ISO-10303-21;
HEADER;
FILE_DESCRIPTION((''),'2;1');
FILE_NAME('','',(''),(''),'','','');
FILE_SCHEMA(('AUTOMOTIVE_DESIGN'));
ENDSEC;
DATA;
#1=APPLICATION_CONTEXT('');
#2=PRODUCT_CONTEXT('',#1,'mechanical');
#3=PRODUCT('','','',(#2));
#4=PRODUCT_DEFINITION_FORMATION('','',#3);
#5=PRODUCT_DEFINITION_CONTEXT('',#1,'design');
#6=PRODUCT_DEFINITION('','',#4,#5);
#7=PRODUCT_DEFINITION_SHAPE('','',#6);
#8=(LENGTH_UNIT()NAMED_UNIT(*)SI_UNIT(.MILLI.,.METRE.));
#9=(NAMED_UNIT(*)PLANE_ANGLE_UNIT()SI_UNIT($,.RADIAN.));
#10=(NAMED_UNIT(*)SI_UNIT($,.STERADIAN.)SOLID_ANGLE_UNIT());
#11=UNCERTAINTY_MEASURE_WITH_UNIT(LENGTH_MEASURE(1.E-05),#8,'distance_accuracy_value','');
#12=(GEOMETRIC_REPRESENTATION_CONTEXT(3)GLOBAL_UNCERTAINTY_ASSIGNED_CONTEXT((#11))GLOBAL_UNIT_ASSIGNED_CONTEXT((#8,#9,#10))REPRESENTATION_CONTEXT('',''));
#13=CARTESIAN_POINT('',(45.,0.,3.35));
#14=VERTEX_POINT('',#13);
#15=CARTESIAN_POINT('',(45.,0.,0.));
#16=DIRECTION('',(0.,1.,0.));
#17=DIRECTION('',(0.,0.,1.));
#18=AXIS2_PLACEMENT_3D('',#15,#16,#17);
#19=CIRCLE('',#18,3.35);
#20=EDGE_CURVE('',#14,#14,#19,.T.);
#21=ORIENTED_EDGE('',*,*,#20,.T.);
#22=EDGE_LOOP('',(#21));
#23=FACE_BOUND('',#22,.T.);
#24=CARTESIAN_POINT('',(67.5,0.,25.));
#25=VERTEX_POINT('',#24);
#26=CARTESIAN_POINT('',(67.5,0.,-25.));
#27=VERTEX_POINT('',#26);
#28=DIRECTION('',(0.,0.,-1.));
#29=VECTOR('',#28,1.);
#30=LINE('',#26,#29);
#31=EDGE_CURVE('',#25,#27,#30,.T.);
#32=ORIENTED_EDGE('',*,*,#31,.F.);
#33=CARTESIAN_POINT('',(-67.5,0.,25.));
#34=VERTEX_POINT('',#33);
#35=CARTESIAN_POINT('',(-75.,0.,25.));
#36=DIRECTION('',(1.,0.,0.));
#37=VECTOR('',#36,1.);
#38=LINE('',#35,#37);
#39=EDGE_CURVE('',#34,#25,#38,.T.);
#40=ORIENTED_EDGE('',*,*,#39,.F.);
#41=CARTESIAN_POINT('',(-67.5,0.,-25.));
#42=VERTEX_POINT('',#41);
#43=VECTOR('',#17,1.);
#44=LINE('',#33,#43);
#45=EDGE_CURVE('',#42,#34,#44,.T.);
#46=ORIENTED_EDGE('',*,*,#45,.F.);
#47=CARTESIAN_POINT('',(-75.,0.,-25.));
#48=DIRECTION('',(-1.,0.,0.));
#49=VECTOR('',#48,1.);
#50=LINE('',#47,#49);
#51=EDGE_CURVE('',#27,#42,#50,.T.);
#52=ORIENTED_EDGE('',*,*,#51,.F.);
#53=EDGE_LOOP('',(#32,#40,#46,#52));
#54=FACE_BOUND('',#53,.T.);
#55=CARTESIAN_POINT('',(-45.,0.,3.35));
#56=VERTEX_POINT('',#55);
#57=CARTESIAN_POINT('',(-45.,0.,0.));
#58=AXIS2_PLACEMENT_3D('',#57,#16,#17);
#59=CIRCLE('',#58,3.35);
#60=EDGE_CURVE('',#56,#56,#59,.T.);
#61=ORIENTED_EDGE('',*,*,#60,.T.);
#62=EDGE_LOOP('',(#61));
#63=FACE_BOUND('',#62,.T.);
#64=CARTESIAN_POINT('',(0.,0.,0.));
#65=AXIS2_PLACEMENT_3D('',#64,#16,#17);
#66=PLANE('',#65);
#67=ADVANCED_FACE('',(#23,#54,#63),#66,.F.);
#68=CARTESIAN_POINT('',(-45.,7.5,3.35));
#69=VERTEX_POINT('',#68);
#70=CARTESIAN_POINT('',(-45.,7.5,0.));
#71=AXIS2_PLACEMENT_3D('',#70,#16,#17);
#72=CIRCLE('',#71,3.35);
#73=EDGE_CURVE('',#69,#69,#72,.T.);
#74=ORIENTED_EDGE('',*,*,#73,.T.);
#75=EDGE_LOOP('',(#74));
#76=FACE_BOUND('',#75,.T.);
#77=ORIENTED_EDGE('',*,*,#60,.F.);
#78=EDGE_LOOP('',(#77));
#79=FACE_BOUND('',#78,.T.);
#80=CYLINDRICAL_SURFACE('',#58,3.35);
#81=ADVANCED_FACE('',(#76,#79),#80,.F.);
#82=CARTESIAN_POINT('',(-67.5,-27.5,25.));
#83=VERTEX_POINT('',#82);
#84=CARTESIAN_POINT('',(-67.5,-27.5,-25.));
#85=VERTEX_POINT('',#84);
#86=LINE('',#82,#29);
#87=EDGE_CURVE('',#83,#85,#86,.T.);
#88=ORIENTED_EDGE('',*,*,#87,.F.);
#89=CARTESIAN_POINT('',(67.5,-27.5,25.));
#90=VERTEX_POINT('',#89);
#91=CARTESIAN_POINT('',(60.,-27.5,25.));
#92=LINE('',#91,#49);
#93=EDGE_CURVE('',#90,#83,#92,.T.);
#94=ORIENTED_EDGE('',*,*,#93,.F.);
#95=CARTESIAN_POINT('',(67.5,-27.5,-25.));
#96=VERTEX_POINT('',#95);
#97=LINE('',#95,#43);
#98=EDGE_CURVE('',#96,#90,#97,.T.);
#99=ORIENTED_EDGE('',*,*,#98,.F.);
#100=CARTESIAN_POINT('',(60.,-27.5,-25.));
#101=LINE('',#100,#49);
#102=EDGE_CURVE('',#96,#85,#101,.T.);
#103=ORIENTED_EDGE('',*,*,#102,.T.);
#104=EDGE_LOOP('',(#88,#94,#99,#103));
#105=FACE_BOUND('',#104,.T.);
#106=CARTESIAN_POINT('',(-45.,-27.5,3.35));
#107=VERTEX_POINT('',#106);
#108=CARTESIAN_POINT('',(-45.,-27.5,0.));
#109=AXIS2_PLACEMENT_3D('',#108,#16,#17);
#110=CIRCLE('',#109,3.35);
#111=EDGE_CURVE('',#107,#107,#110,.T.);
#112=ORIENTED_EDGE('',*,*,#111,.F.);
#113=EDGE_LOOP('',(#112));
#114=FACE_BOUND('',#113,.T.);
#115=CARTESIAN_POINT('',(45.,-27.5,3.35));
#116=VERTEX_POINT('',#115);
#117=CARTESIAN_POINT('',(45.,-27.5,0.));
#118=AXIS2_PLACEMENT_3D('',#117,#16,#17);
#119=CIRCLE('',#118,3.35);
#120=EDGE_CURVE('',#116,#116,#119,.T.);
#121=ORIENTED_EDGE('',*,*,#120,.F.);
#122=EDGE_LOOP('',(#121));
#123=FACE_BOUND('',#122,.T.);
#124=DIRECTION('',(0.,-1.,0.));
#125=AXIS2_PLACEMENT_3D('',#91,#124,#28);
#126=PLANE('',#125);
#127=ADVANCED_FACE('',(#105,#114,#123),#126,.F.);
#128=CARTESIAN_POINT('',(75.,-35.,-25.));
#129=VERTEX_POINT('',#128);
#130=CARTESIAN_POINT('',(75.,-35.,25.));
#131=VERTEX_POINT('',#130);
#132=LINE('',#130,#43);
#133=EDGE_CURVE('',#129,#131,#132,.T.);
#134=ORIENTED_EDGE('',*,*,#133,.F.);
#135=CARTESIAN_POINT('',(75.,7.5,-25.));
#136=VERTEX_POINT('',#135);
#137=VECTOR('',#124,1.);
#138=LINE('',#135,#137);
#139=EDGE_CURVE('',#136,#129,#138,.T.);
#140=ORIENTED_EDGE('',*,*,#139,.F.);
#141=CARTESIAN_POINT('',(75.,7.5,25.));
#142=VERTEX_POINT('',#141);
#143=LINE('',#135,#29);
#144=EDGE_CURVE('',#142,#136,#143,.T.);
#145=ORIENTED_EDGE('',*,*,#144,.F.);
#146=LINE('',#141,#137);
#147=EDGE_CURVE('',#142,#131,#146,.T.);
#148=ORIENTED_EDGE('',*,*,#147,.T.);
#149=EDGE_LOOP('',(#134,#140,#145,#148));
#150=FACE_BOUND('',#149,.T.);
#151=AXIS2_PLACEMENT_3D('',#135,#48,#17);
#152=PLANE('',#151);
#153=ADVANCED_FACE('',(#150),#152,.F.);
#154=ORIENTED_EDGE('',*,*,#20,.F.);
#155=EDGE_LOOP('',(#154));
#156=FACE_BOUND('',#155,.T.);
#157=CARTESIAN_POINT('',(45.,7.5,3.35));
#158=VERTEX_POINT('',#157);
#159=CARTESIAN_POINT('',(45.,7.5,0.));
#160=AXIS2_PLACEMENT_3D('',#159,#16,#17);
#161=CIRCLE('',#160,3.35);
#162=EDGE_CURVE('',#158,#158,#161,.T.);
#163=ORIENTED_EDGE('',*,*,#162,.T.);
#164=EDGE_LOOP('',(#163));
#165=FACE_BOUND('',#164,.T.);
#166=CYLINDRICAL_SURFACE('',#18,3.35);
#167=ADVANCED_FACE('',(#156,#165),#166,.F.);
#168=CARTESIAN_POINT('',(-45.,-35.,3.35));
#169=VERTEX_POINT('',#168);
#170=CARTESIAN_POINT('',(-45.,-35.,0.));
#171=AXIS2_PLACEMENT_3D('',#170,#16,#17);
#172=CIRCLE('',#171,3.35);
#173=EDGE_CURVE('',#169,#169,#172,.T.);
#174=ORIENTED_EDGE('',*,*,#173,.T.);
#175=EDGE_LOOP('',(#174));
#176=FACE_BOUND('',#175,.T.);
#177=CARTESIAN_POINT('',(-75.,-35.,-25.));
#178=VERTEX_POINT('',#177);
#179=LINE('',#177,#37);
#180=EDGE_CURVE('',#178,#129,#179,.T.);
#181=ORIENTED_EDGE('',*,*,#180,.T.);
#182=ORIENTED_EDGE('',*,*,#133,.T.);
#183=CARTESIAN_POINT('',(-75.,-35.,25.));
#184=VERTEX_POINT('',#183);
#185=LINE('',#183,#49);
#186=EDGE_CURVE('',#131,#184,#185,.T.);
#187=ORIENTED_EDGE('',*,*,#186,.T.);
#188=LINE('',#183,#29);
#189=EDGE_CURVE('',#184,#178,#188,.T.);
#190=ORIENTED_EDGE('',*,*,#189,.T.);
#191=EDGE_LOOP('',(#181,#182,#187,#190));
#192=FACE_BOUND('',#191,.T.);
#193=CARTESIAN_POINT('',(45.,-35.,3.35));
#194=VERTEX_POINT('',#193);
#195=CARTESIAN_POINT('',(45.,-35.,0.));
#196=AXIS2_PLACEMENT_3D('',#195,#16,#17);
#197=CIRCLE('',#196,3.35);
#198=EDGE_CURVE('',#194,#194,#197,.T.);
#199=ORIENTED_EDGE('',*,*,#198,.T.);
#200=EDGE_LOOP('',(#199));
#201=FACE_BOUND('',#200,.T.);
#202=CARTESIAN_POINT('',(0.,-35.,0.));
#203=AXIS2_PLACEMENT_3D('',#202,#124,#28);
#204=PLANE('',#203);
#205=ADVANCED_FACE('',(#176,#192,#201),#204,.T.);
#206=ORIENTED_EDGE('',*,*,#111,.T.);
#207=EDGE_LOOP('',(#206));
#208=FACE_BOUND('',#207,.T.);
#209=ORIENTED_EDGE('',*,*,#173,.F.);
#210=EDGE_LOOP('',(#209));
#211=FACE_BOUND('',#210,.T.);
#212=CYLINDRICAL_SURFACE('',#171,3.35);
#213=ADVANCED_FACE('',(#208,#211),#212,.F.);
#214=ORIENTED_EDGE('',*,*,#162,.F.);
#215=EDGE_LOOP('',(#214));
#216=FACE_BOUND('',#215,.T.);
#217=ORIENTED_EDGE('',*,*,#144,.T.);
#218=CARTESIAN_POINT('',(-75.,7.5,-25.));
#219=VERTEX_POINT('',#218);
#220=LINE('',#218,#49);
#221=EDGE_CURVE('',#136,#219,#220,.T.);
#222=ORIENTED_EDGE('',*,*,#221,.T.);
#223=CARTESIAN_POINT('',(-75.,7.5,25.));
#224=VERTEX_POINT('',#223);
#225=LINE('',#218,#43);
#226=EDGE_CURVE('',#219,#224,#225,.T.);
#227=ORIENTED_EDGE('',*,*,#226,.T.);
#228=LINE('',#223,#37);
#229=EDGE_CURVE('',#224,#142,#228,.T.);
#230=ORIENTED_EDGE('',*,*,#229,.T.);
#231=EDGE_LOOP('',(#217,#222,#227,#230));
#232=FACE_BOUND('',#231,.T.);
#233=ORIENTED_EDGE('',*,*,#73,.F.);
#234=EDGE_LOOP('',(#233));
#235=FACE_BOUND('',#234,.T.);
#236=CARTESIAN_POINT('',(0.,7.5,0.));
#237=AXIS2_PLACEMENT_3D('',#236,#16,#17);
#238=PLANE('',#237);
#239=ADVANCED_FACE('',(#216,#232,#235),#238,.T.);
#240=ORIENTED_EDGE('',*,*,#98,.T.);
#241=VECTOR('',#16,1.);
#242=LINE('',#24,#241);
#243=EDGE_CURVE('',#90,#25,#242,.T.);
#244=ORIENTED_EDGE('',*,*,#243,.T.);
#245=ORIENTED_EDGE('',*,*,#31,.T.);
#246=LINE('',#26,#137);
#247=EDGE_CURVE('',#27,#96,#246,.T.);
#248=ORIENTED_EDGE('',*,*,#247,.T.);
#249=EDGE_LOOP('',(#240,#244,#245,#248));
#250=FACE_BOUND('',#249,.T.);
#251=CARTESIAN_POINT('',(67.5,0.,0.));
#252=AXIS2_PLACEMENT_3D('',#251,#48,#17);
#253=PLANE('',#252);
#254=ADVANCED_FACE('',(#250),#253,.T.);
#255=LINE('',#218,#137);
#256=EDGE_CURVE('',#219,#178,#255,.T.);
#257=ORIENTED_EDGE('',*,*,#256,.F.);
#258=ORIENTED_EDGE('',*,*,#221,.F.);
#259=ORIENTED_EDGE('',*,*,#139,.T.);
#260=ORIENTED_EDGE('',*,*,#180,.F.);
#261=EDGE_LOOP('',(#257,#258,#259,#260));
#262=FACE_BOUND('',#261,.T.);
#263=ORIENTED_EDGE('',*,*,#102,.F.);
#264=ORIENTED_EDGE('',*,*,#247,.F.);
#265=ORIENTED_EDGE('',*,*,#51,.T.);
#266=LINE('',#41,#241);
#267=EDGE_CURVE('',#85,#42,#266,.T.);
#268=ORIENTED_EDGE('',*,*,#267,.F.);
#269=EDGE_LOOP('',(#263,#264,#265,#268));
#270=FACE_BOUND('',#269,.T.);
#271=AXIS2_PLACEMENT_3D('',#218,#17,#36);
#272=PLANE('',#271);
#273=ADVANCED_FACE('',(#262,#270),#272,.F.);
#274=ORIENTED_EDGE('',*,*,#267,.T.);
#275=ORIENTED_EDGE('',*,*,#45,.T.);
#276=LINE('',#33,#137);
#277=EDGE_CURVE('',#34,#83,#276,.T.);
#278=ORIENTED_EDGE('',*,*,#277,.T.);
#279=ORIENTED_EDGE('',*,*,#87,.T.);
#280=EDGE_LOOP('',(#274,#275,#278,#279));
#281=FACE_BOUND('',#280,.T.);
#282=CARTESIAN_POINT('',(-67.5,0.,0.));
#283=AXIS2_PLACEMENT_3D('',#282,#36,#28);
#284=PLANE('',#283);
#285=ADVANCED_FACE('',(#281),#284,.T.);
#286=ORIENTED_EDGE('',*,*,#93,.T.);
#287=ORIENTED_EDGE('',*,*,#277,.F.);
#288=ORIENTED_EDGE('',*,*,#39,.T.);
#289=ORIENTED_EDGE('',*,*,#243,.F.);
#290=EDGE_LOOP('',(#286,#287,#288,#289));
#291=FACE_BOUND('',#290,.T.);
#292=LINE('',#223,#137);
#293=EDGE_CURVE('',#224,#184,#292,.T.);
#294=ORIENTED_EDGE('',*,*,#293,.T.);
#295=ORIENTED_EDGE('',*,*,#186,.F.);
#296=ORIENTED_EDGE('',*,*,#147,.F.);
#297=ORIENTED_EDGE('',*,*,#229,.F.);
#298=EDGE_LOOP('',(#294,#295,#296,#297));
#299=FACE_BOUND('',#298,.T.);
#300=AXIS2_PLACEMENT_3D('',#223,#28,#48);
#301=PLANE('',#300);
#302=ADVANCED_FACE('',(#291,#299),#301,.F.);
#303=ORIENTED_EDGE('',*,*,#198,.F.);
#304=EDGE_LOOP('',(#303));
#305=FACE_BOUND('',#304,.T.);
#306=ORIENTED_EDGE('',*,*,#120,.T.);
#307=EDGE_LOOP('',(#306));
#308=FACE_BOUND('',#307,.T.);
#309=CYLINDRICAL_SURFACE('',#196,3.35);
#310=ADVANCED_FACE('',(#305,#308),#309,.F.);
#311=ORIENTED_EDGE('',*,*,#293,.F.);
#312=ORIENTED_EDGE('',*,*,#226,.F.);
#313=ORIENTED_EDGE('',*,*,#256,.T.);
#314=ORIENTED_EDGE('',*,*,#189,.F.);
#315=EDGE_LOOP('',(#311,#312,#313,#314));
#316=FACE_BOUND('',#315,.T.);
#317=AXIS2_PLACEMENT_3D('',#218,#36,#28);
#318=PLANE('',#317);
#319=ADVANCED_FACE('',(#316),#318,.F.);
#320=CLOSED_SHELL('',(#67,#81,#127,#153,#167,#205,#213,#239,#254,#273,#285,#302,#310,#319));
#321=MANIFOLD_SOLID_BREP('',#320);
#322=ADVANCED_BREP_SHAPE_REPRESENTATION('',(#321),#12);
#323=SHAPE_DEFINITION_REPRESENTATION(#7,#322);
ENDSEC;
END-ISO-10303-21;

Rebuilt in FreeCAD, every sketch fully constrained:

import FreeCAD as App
import Part
import Sketcher
from FreeCAD import Vector
Q = App.Units.Quantity


def add_polygon(sketch, points):
    """Adds a closed chain of lines whose ends are joined by coincident constraints."""
    first, n = sketch.GeometryCount, len(points)
    for a, b in zip(points, points[1:] + points[:1]):
        sketch.addGeometry(Part.LineSegment(App.Vector(*a, 0), App.Vector(*b, 0)), False)
    for i in range(n):
        sketch.addConstraint(Sketcher.Constraint("Coincident", first + i, 2, first + (i + 1) % n, 1))

doc = App.newDocument("Part")
body = doc.addObject("PartDesign::Body", "Body")

# Sketch on XZ plane
sketch1 = doc.addObject("Sketcher::SketchObject", "Sketch")
body.addObject(sketch1)
sketch1.AttachmentSupport = (doc.XZ_Plane, [""])
sketch1.MapMode = "FlatFace"
add_polygon(sketch1, [(-75, -25), (-75, 25), (75, 25), (75, -25)])  # lines 0-3
sketch1.addConstraint([
    Sketcher.Constraint("Vertical", 0),
    Sketcher.Constraint("Horizontal", 1),
    Sketcher.Constraint("Vertical", 2),
    Sketcher.Constraint("Horizontal", 3),
    Sketcher.Constraint("Symmetric", 0, 2, 2, 2, -1, 1),
    Sketcher.Constraint("DistanceX", 1, 1, 1, 2, Q("150 mm")),
    Sketcher.Constraint("DistanceY", 0, 1, 0, 2, Q("50 mm")),
])
pad1 = doc.addObject("PartDesign::Pad", "Pad")
body.addObject(pad1)
pad1.Profile = sketch1
pad1.Length = 7.5
pad1.Reversed = True

# Sketch on XZ plane
sketch2 = doc.addObject("Sketcher::SketchObject", "Sketch001")
body.addObject(sketch2)
sketch2.AttachmentSupport = (doc.XZ_Plane, [""])
sketch2.MapMode = "FlatFace"
sketch2.AttachmentOffset = App.Placement(Vector(0, 0, -7.5), App.Rotation())
sketch2.addGeometry([
    Part.Circle(Vector(-45, 0, 0), Vector(0, 0, 1), 3.35),
    Part.Circle(Vector(45, 0, 0), Vector(0, 0, 1), 3.35),
], False)
sketch2.addConstraint([
    Sketcher.Constraint("Equal", 0, 1),
    Sketcher.Constraint("Symmetric", 0, 3, 1, 3, -1, 1),
    Sketcher.Constraint("PointOnObject", 0, 3, -1),
    Sketcher.Constraint("Diameter", 0, Q("6.7 mm")),
    Sketcher.Constraint("DistanceX", 0, 3, -1, 1, Q("45 mm")),
])
pocket1 = doc.addObject("PartDesign::Pocket", "Pocket")
body.addObject(pocket1)
pocket1.Profile = sketch2
pocket1.Length = 7.5
pocket1.Reversed = True

# Sketch on XZ plane
sketch3 = doc.addObject("Sketcher::SketchObject", "Sketch002")
body.addObject(sketch3)
sketch3.AttachmentSupport = (doc.XZ_Plane, [""])
sketch3.MapMode = "FlatFace"
add_polygon(sketch3, [(-75, 25), (-75, -25), (-60, -25), (-60, 25)])  # lines 0-3
add_polygon(sketch3, [(60, 25), (60, -25), (75, -25), (75, 25)])  # lines 4-7
sketch3.addConstraint([
    Sketcher.Constraint("Vertical", 0),
    Sketcher.Constraint("Horizontal", 1),
    Sketcher.Constraint("Vertical", 2),
    Sketcher.Constraint("Horizontal", 3),
    Sketcher.Constraint("Vertical", 4),
    Sketcher.Constraint("Horizontal", 5),
    Sketcher.Constraint("Vertical", 6),
    Sketcher.Constraint("Horizontal", 7),
    Sketcher.Constraint("Symmetric", 2, 2, 4, 2, -1, 1),
    Sketcher.Constraint("Symmetric", 0, 2, 6, 2, -1, 1),
    Sketcher.Constraint("Horizontal", 1, 2, 4, 2),
    Sketcher.Constraint("DistanceX", 1, 1, 1, 2, Q("15 mm")),
    Sketcher.Constraint("DistanceY", 0, 2, 0, 1, Q("50 mm")),
    Sketcher.Constraint("DistanceX", 0, 2, -1, 1, Q("75 mm")),
])
pad2 = doc.addObject("PartDesign::Pad", "Pad001")
body.addObject(pad2)
pad2.Profile = sketch3
pad2.Length = 35

# Sketch on YZ plane
sketch4 = doc.addObject("Sketcher::SketchObject", "Sketch003")
body.addObject(sketch4)
sketch4.AttachmentSupport = (doc.YZ_Plane, [""])
sketch4.MapMode = "FlatFace"
sketch4.AttachmentOffset = App.Placement(Vector(0, 0, -60), App.Rotation())
add_polygon(sketch4, [(-27.5, 25), (-35, 25), (-35, -25), (-27.5, -25)])  # lines 0-3
sketch4.addConstraint([
    Sketcher.Constraint("Horizontal", 0),
    Sketcher.Constraint("Vertical", 1),
    Sketcher.Constraint("Horizontal", 2),
    Sketcher.Constraint("Vertical", 3),
    Sketcher.Constraint("DistanceY", 1, 2, 1, 1, Q("50 mm")),
    Sketcher.Constraint("DistanceX", 0, 2, 0, 1, Q("7.5 mm")),
    Sketcher.Constraint("DistanceX", 0, 2, -1, 1, Q("35 mm")),
    Sketcher.Constraint("DistanceY", -1, 1, 0, 2, Q("25 mm")),
])
pad3 = doc.addObject("PartDesign::Pad", "Pad002")
body.addObject(pad3)
pad3.Profile = sketch4
pad3.Length = 120

# Sketch on XZ plane
sketch5 = doc.addObject("Sketcher::SketchObject", "Sketch004")
body.addObject(sketch5)
sketch5.AttachmentSupport = (doc.XZ_Plane, [""])
sketch5.MapMode = "FlatFace"
sketch5.AttachmentOffset = App.Placement(Vector(0, 0, 27.5), App.Rotation())
sketch5.addGeometry([
    Part.Circle(Vector(-45, 0, 0), Vector(0, 0, 1), 3.35),
    Part.Circle(Vector(45, 0, 0), Vector(0, 0, 1), 3.35),
], False)
sketch5.addConstraint([
    Sketcher.Constraint("Equal", 0, 1),
    Sketcher.Constraint("Symmetric", 0, 3, 1, 3, -1, 1),
    Sketcher.Constraint("PointOnObject", 0, 3, -1),
    Sketcher.Constraint("Diameter", 0, Q("6.7 mm")),
    Sketcher.Constraint("DistanceX", 0, 3, -1, 1, Q("45 mm")),
])
pocket2 = doc.addObject("PartDesign::Pocket", "Pocket001")
body.addObject(pocket2)
pocket2.Profile = sketch5
pocket2.Length = 7.5
pocket2.Reversed = True

# Sketch on YZ plane
sketch6 = doc.addObject("Sketcher::SketchObject", "Sketch005")
body.addObject(sketch6)
sketch6.AttachmentSupport = (doc.YZ_Plane, [""])
sketch6.MapMode = "FlatFace"
sketch6.AttachmentOffset = App.Placement(Vector(0, 0, -60), App.Rotation())
add_polygon(sketch6, [(0, 25), (-27.5, 25), (-27.5, -25), (0, -25)])  # lines 0-3
sketch6.addConstraint([
    Sketcher.Constraint("Horizontal", 0),
    Sketcher.Constraint("Vertical", 1),
    Sketcher.Constraint("Horizontal", 2),
    Sketcher.Constraint("Vertical", 3),
    Sketcher.Constraint("Symmetric", 2, 2, 3, 2, -1, 1),
    Sketcher.Constraint("DistanceY", 1, 2, 1, 1, Q("50 mm")),
    Sketcher.Constraint("DistanceX", 0, 2, 0, 1, Q("27.5 mm")),
])
pocket3 = doc.addObject("PartDesign::Pocket", "Pocket002")
body.addObject(pocket3)
pocket3.Profile = sketch6
pocket3.Length = 7.5

# Sketch on YZ plane
sketch7 = doc.addObject("Sketcher::SketchObject", "Sketch006")
body.addObject(sketch7)
sketch7.AttachmentSupport = (doc.YZ_Plane, [""])
sketch7.MapMode = "FlatFace"
sketch7.AttachmentOffset = App.Placement(Vector(0, 0, 60), App.Rotation())
add_polygon(sketch7, [(0, -25), (-27.5, -25), (-27.5, 25), (0, 25)])  # lines 0-3
sketch7.addConstraint([
    Sketcher.Constraint("Horizontal", 0),
    Sketcher.Constraint("Vertical", 1),
    Sketcher.Constraint("Horizontal", 2),
    Sketcher.Constraint("Vertical", 3),
    Sketcher.Constraint("Symmetric", 2, 2, 3, 2, -1, 1),
    Sketcher.Constraint("DistanceY", 1, 1, 1, 2, Q("50 mm")),
    Sketcher.Constraint("DistanceX", 0, 2, 0, 1, Q("27.5 mm")),
])
pocket4 = doc.addObject("PartDesign::Pocket", "Pocket003")
body.addObject(pocket4)
pocket4.Profile = sketch7
pocket4.Length = 7.5
pocket4.Reversed = True

doc.recompute()
